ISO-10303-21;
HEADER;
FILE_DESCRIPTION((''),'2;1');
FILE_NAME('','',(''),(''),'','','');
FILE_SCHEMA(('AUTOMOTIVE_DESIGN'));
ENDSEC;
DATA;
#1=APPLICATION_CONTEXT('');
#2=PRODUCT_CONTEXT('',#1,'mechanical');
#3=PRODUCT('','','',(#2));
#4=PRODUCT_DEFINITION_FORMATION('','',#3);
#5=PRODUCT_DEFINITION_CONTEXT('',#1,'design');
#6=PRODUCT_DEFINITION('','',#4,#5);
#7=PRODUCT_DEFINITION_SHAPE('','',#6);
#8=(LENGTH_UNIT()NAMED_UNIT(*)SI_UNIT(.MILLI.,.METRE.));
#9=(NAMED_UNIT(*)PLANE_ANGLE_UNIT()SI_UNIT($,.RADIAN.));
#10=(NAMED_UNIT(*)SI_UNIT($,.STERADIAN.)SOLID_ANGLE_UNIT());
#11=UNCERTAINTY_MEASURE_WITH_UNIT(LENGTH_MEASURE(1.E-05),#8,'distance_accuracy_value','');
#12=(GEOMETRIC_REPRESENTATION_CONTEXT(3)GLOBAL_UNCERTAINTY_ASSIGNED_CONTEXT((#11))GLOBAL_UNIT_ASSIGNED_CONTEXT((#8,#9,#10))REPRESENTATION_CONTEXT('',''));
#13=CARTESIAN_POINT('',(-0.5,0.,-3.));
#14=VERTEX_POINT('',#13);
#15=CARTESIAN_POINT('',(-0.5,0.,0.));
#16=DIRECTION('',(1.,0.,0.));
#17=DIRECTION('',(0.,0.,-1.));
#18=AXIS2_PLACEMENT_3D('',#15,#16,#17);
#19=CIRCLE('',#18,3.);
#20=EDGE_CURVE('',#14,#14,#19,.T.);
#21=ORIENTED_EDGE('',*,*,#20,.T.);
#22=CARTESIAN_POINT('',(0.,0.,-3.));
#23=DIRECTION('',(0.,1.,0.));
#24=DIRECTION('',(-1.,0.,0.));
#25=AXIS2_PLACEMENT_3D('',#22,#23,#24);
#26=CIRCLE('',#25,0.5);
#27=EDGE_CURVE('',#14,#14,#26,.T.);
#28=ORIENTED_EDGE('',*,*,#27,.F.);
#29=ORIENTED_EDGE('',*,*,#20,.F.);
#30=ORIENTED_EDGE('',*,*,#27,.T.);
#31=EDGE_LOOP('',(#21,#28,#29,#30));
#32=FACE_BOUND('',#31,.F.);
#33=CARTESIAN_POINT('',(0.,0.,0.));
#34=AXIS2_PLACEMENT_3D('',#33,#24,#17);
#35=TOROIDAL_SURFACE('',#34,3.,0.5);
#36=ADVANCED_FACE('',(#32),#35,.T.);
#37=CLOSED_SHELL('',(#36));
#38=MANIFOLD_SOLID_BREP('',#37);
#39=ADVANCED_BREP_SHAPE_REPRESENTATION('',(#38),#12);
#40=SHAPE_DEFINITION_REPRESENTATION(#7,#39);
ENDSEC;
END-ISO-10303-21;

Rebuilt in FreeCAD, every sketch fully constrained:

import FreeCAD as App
import Part
import Sketcher
Q = App.Units.Quantity

doc = App.newDocument("Part")
body = doc.addObject("PartDesign::Body", "Body")

sketch1 = doc.addObject("Sketcher::SketchObject", "Sketch")
body.addObject(sketch1)
sketch1.AttachmentSupport = (doc.XZ_Plane, [""])
sketch1.MapMode = "FlatFace"
sketch1.addGeometry(Part.Circle(App.Vector(0, -3, 0), App.Vector(0, 0, 1), 0.5), False)
sketch1.addConstraint([
    Sketcher.Constraint("PointOnObject", 0, 3, -2),
    Sketcher.Constraint("Diameter", 0, Q("1 mm")),
    Sketcher.Constraint("DistanceY", 0, 3, -1, 1, Q("3 mm")),
])
revolution = doc.addObject("PartDesign::Revolution", "Revolution")
body.addObject(revolution)
revolution.Profile = sketch1
revolution.ReferenceAxis = (sketch1, ["H_Axis"])
revolution.Angle = 360

doc.recompute()
